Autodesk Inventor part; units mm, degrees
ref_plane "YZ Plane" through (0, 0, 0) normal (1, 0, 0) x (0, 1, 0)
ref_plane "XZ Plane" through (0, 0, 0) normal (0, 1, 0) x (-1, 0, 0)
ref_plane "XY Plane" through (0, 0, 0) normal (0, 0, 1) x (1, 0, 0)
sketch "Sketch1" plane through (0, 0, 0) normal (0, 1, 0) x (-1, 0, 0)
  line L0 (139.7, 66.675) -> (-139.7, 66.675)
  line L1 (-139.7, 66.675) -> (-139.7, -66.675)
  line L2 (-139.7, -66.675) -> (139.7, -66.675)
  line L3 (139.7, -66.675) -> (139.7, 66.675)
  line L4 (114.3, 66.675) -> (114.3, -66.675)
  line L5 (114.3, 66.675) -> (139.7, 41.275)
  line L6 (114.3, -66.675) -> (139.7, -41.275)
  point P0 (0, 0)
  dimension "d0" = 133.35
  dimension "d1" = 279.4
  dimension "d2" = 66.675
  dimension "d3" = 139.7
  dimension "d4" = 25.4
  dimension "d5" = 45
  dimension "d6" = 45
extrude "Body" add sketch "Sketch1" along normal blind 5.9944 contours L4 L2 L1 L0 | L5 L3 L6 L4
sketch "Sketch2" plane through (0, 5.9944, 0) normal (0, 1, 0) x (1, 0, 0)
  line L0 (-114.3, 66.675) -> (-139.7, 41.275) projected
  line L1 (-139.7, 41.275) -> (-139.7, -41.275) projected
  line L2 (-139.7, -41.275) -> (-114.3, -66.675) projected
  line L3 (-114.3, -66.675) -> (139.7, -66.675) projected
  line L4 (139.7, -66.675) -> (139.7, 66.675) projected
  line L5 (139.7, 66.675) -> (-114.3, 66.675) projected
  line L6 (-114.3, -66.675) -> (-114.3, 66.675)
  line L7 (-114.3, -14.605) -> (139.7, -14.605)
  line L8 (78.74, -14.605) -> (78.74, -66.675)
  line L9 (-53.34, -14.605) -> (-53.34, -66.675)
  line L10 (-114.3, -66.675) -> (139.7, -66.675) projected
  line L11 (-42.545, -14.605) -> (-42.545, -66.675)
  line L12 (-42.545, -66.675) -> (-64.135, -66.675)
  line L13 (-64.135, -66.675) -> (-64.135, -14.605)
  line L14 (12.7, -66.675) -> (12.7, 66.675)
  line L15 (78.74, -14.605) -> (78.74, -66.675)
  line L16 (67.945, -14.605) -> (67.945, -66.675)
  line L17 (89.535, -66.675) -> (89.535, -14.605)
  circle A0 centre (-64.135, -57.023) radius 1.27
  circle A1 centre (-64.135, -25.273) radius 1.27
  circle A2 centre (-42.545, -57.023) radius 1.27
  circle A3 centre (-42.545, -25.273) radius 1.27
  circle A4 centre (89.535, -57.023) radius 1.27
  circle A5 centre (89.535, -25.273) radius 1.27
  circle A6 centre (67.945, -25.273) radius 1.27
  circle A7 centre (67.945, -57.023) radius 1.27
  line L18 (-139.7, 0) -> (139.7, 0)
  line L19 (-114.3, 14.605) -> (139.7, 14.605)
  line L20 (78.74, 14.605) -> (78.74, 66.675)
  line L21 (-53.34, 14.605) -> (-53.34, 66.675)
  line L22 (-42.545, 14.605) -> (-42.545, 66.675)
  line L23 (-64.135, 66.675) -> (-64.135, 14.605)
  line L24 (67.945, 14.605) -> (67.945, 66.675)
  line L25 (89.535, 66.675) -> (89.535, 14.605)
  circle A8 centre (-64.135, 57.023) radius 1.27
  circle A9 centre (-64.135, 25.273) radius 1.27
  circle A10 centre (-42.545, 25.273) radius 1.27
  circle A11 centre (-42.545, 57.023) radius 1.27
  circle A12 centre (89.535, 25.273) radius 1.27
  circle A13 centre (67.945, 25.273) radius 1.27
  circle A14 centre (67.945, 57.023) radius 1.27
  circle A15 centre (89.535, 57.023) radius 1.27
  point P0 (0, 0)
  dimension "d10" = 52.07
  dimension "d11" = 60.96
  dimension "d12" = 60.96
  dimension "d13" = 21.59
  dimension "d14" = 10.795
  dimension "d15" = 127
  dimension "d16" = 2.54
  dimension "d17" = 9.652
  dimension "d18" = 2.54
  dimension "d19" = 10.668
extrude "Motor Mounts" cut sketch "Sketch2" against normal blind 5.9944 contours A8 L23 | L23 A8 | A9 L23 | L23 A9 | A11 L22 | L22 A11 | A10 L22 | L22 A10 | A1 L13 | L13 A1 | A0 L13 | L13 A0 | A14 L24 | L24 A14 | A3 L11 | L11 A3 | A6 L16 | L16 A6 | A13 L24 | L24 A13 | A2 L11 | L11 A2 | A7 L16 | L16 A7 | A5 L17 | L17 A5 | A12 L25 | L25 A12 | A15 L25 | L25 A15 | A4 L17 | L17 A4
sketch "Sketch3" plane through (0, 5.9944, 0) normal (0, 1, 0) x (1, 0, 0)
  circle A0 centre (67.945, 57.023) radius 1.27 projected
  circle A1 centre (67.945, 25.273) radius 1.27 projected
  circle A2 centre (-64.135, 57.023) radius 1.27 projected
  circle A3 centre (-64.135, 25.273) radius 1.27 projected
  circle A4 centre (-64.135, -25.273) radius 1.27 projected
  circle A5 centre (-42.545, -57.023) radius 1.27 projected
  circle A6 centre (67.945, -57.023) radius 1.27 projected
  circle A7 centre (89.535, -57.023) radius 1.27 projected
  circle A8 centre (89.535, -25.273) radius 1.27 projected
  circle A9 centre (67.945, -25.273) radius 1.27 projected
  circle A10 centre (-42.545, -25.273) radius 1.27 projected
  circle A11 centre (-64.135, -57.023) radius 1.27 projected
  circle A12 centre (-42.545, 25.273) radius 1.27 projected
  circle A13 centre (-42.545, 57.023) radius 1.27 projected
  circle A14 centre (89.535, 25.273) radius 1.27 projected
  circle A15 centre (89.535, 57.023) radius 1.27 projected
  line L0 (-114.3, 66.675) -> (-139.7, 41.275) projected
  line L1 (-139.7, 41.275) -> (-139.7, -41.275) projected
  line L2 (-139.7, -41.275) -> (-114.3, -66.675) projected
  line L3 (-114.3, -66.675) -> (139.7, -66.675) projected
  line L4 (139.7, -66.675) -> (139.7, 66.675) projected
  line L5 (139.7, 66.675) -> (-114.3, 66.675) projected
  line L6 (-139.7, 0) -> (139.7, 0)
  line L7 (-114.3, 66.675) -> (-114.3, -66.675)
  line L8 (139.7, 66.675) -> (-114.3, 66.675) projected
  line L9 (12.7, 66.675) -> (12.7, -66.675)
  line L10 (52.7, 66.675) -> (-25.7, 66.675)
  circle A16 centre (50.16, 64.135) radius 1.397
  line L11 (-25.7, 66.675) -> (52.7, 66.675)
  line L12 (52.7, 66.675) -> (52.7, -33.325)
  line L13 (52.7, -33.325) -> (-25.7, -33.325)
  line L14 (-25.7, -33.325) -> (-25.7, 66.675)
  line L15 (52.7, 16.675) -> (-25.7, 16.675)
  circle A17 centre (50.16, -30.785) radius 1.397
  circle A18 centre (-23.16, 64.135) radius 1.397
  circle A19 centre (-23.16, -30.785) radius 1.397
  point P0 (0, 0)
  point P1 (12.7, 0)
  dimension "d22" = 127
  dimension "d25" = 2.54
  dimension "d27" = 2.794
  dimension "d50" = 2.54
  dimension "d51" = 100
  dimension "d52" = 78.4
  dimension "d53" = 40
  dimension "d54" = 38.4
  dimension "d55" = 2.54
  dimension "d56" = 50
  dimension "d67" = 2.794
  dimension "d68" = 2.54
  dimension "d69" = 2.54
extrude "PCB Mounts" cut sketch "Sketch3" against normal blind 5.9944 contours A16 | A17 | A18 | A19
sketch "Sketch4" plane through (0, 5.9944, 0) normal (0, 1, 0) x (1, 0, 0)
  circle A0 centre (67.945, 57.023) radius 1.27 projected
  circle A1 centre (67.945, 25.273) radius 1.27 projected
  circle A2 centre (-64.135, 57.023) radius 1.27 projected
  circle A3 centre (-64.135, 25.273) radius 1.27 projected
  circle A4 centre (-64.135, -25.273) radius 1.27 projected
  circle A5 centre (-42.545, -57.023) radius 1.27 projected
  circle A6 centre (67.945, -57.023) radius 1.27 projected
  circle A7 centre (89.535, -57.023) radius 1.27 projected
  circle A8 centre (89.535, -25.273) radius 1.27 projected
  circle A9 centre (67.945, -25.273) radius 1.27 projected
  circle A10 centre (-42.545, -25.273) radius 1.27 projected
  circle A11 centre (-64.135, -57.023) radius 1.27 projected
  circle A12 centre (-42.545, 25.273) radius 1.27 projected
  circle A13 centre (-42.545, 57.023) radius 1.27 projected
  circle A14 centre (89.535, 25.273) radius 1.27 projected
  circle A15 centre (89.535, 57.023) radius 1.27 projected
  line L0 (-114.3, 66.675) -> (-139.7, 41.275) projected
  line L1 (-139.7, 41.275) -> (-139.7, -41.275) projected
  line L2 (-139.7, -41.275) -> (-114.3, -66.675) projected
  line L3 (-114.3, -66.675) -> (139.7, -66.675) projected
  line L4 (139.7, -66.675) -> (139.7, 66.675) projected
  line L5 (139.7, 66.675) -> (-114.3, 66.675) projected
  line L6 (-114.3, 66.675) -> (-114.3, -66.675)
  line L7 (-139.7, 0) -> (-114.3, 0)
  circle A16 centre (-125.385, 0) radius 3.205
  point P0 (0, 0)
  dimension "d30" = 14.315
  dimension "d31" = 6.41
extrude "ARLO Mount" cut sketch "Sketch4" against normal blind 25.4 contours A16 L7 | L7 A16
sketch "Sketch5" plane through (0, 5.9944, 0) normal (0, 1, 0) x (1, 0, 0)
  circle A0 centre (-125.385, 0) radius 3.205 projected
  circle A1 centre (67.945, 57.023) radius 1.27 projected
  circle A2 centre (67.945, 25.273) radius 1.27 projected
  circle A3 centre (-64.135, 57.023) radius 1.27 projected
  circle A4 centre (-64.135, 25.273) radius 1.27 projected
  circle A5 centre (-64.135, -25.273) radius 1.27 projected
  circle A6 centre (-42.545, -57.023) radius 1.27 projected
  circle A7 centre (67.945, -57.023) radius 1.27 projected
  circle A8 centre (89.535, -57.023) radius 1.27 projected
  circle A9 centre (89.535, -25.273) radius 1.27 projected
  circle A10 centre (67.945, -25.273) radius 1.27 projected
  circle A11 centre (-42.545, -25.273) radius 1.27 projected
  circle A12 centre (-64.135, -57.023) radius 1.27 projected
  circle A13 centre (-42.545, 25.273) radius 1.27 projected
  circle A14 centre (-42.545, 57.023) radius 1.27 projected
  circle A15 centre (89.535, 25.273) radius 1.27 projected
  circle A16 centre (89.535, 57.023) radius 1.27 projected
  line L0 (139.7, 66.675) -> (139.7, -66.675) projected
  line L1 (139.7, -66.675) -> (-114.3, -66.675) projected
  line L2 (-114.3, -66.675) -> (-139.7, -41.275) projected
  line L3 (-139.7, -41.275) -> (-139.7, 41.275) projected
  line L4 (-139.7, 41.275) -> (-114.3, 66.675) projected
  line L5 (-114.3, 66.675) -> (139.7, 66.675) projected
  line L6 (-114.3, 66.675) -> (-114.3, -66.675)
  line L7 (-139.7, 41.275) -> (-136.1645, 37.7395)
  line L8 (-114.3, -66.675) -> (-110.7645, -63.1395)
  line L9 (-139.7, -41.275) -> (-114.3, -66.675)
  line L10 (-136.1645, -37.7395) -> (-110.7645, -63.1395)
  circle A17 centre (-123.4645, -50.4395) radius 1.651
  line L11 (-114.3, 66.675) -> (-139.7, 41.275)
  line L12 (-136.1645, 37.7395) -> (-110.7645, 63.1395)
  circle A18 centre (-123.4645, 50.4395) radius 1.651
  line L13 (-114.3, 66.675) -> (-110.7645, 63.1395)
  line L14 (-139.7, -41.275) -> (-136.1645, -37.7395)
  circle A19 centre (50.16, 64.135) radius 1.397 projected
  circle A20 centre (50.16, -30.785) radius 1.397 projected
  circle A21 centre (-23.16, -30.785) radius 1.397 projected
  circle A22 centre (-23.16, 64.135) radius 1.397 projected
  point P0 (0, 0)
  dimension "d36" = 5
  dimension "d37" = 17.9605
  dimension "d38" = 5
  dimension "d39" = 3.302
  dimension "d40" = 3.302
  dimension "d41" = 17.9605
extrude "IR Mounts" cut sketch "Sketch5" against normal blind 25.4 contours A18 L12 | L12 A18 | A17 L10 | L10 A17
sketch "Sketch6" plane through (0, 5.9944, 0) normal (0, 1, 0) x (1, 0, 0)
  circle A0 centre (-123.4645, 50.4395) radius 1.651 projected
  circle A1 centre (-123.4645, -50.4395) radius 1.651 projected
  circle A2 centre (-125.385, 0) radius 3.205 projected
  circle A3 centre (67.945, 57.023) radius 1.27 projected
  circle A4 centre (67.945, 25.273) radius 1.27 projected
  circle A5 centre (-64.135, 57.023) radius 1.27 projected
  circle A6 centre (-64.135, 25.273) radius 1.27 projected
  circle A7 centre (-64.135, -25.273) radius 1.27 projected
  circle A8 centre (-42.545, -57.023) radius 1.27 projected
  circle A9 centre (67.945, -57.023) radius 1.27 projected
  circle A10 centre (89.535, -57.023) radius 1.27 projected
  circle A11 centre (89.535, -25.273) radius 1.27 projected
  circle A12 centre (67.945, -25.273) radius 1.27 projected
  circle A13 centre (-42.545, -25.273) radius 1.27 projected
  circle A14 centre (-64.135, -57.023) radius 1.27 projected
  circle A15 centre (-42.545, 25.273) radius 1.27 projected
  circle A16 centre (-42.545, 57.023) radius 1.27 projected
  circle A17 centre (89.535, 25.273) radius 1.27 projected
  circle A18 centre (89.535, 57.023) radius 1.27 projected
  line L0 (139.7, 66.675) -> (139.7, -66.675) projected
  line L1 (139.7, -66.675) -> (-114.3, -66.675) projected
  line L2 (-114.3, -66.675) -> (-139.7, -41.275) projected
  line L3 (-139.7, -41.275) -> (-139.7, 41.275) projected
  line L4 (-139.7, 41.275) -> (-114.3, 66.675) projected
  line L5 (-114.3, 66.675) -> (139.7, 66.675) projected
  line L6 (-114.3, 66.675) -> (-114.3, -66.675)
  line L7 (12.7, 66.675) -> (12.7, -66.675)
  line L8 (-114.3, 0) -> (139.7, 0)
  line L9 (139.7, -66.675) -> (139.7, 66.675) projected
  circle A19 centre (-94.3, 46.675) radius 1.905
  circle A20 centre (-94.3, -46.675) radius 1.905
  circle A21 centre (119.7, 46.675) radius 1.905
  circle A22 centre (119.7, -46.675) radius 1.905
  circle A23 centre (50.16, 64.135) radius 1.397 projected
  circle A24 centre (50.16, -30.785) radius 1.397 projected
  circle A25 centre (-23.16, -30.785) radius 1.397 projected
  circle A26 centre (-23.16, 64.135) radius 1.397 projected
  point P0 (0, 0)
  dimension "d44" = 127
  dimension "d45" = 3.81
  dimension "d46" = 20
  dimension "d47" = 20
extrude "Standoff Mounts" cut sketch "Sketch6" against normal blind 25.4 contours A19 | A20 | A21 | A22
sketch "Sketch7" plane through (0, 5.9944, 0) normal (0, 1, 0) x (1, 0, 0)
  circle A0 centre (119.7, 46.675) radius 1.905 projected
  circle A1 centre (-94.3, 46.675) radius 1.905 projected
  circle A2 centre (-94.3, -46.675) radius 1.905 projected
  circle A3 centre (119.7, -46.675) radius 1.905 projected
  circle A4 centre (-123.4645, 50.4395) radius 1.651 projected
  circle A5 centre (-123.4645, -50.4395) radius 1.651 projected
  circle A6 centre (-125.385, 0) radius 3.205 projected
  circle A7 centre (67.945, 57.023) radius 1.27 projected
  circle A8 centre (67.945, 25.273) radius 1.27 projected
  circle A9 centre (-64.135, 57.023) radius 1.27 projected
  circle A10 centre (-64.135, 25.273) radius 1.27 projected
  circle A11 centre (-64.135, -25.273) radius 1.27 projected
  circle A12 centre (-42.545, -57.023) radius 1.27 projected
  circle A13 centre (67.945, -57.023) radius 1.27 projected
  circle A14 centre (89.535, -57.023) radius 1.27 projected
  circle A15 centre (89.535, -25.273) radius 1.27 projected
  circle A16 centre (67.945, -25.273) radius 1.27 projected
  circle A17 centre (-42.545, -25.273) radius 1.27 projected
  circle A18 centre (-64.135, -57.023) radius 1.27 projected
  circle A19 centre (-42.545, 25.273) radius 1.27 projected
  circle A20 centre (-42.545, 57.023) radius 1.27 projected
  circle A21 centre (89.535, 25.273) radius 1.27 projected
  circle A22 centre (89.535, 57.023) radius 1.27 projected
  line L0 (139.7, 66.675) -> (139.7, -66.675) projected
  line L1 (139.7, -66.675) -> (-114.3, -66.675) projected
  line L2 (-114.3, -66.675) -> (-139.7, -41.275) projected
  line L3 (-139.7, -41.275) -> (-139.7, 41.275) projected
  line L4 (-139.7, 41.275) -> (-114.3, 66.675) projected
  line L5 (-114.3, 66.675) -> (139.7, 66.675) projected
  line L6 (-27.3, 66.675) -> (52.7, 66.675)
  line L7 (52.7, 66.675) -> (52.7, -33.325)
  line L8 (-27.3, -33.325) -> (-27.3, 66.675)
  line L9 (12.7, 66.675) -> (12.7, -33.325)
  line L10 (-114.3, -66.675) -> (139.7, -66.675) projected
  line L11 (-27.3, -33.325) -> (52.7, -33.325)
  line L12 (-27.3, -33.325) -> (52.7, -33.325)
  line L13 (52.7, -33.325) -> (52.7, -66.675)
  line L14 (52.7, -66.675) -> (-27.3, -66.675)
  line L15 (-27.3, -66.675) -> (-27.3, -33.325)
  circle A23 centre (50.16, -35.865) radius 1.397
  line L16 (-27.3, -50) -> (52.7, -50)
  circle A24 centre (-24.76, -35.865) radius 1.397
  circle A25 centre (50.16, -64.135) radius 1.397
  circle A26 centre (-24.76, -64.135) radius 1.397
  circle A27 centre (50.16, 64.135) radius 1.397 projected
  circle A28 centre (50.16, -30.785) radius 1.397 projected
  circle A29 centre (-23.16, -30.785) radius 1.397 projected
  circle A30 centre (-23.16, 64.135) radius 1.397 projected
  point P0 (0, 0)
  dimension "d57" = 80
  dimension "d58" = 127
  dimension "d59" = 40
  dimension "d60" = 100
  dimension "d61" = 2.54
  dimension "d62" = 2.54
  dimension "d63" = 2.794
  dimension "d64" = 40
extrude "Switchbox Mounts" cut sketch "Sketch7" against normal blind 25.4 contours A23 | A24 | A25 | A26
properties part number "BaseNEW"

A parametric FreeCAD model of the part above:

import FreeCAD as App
import Part
import Sketcher

V = App.Vector
Q = App.Units.Quantity

doc = App.newDocument("Part")
params = doc.addObject("Spreadsheet::Sheet", "Params")
for row, (alias, value) in enumerate([
    ("sketch1_height", "5.25 in"),
    ("pad1_length", "0.236 in"),
    ("sketch2_diameter", "0.1 in"),
    ("pocket1_length", "0.236 in"),
    ("sketch3_diameter", "0.11 in"),
    ("pocket2_length", "0.236 in"),
    ("pocket3_length", "1 in"),
    ("sketch5_diameter", "0.13 in"),
    ("pocket4_length", "1 in"),
    ("sketch6_diameter", "0.15 in"),
    ("pocket5_length", "1 in"),
    ("sketch7_diameter", "0.11 in"),
    ("pocket6_length", "1 in"),
], start=1):
    params.set(f"A{row}", alias)
    params.set(f"B{row}", "=" + value)
    params.setAlias(f"B{row}", alias)

body = doc.addObject("PartDesign::Body", "Body")

# Sketch on XZ plane
sketch1 = body.newObject("Sketcher::SketchObject", "Sketch")
sketch1.AttachmentSupport = (doc.getObject("XZ_Plane"), [""])
sketch1.MapMode = "FlatFace"
sketch1.addGeometry(Part.LineSegment(V(140, -67, 0), V(-114, -67, 0)), False)
sketch1.addGeometry(Part.LineSegment(V(-114, -67, 0), V(-140, -41, 0)), False)
sketch1.addGeometry(Part.LineSegment(V(-140, -41, 0), V(-140, 41, 0)), False)
sketch1.addGeometry(Part.LineSegment(V(-140, 41, 0), V(-114, 67, 0)), False)
sketch1.addGeometry(Part.LineSegment(V(-114, 67, 0), V(140, 67, 0)), False)
sketch1.addGeometry(Part.LineSegment(V(140, 67, 0), V(140, -67, 0)), False)
sketch1.addConstraint(Sketcher.Constraint("Coincident", 0, 2, 1, 1))
sketch1.addConstraint(Sketcher.Constraint("Coincident", 1, 2, 2, 1))
sketch1.addConstraint(Sketcher.Constraint("Coincident", 2, 2, 3, 1))
sketch1.addConstraint(Sketcher.Constraint("Coincident", 3, 2, 4, 1))
sketch1.addConstraint(Sketcher.Constraint("Coincident", 4, 2, 5, 1))
sketch1.addConstraint(Sketcher.Constraint("Coincident", 5, 2, 0, 1))
sketch1.addConstraint(Sketcher.Constraint("Horizontal", 0))
sketch1.addConstraint(Sketcher.Constraint("Vertical", 2))
sketch1.addConstraint(Sketcher.Constraint("Horizontal", 4))
sketch1.addConstraint(Sketcher.Constraint("Vertical", 5))
sketch1.addConstraint(Sketcher.Constraint("Symmetric", 0, 2, 3, 2, -1))
sketch1.addConstraint(Sketcher.Constraint("Perpendicular", 1, 3))
sketch1.addConstraint(Sketcher.Constraint("Equal", 1, 3))
sketch1.addConstraint(Sketcher.Constraint("DistanceX", 1, 2, 0, 2, Q("1 in")))
sketch1.addConstraint(Sketcher.Constraint("DistanceX", 2, 2, 4, 2, Q("11 in")))
sketch1.addConstraint(Sketcher.Constraint("DistanceY", 5, 2, 5, 1, Q("5.25 in")))
sketch1.addConstraint(Sketcher.Constraint("DistanceX", 1, 2, -1, 1, Q("5.5 in")))
sketch1.setExpression("Constraints[15]", "Params.sketch1_height")
pad1 = body.newObject("PartDesign::Pad", "Pad")
pad1.Profile = sketch1
pad1.setExpression("Length", "Params.pad1_length")
pad1.Reversed = True

# Sketch on XZ plane
sketch2 = body.newObject("Sketcher::SketchObject", "Sketch001")
sketch2.AttachmentSupport = (doc.getObject("XZ_Plane"), [""])
sketch2.MapMode = "FlatFace"
sketch2.AttachmentOffset = App.Placement(V(0, 0, -0.236 * 25.4), App.Rotation())
sketch2.addGeometry(Part.Circle(V(-64.1, -57, 0), V(0, 0, 1), 1.3), False)
sketch2.addGeometry(Part.Circle(V(-64.1, -25.3, 0), V(0, 0, 1), 1.3), False)
sketch2.addGeometry(Part.Circle(V(-42.5, -57, 0), V(0, 0, 1), 1.3), False)
sketch2.addGeometry(Part.Circle(V(-42.5, -25.3, 0), V(0, 0, 1), 1.3), False)
sketch2.addGeometry(Part.Circle(V(-64.1, 25.3, 0), V(0, 0, 1), 1.3), False)
sketch2.addGeometry(Part.Circle(V(-64.1, 57, 0), V(0, 0, 1), 1.3), False)
sketch2.addGeometry(Part.Circle(V(67.9, -57, 0), V(0, 0, 1), 1.3), False)
sketch2.addGeometry(Part.Circle(V(-42.5, 25.3, 0), V(0, 0, 1), 1.3), False)
sketch2.addGeometry(Part.Circle(V(67.9, 25.3, 0), V(0, 0, 1), 1.3), False)
sketch2.addGeometry(Part.Circle(V(67.9, -25.3, 0), V(0, 0, 1), 1.3), False)
sketch2.addGeometry(Part.Circle(V(-42.5, 57, 0), V(0, 0, 1), 1.3), False)
sketch2.addGeometry(Part.Circle(V(67.9, 57, 0), V(0, 0, 1), 1.3), False)
sketch2.addGeometry(Part.Circle(V(89.5, 25.3, 0), V(0, 0, 1), 1.3), False)
sketch2.addGeometry(Part.Circle(V(89.5, -25.3, 0), V(0, 0, 1), 1.3), False)
sketch2.addGeometry(Part.Circle(V(89.5, -57, 0), V(0, 0, 1), 1.3), False)
sketch2.addGeometry(Part.Circle(V(89.5, 57, 0), V(0, 0, 1), 1.3), False)
sketch2.addConstraint(Sketcher.Constraint("Equal", 0, 1))
sketch2.addConstraint(Sketcher.Constraint("Equal", 1, 2))
sketch2.addConstraint(Sketcher.Constraint("Equal", 2, 3))
sketch2.addConstraint(Sketcher.Constraint("Equal", 3, 4))
sketch2.addConstraint(Sketcher.Constraint("Equal", 4, 5))
sketch2.addConstraint(Sketcher.Constraint("Equal", 5, 6))
sketch2.addConstraint(Sketcher.Constraint("Equal", 6, 7))
sketch2.addConstraint(Sketcher.Constraint("Equal", 7, 8))
sketch2.addConstraint(Sketcher.Constraint("Equal", 8, 9))
sketch2.addConstraint(Sketcher.Constraint("Equal", 9, 10))
sketch2.addConstraint(Sketcher.Constraint("Equal", 10, 11))
sketch2.addConstraint(Sketcher.Constraint("Equal", 11, 12))
sketch2.addConstraint(Sketcher.Constraint("Equal", 12, 13))
sketch2.addConstraint(Sketcher.Constraint("Equal", 13, 14))
sketch2.addConstraint(Sketcher.Constraint("Equal", 14, 15))
sketch2.addConstraint(Sketcher.Constraint("Symmetric", 1, 3, 4, 3, -1))
sketch2.addConstraint(Sketcher.Constraint("Symmetric", 0, 3, 5, 3, -1))
sketch2.addConstraint(Sketcher.Constraint("Symmetric", 3, 3, 7, 3, -1))
sketch2.addConstraint(Sketcher.Constraint("Symmetric", 8, 3, 9, 3, -1))
sketch2.addConstraint(Sketcher.Constraint("Symmetric", 2, 3, 10, 3, -1))
sketch2.addConstraint(Sketcher.Constraint("Symmetric", 6, 3, 11, 3, -1))
sketch2.addConstraint(Sketcher.Constraint("Symmetric", 12, 3, 13, 3, -1))
sketch2.addConstraint(Sketcher.Constraint("Symmetric", 14, 3, 15, 3, -1))
sketch2.addConstraint(Sketcher.Constraint("Horizontal", 0, 3, 2, 3))
sketch2.addConstraint(Sketcher.Constraint("Horizontal", 1, 3, 3, 3))
sketch2.addConstraint(Sketcher.Constraint("Horizontal", 2, 3, 6, 3))
sketch2.addConstraint(Sketcher.Constraint("Horizontal", 7, 3, 8, 3))
sketch2.addConstraint(Sketcher.Constraint("Horizontal", 8, 3, 12, 3))
sketch2.addConstraint(Sketcher.Constraint("Horizontal", 6, 3, 14, 3))
sketch2.addConstraint(Sketcher.Constraint("Vertical", 0, 3, 1, 3))
sketch2.addConstraint(Sketcher.Constraint("Vertical", 2, 3, 3, 3))
sketch2.addConstraint(Sketcher.Constraint("Vertical", 6, 3, 8, 3))
sketch2.addConstraint(Sketcher.Constraint("Vertical", 13, 3, 14, 3))
sketch2.addConstraint(Sketcher.Constraint("Diameter", 0, Q("0.1 in")))
sketch2.addConstraint(Sketcher.Constraint("DistanceX", 0, 3, 2, 3, Q("0.85 in")))
sketch2.addConstraint(Sketcher.Constraint("DistanceX", 8, 3, 12, 3, Q("0.85 in")))
sketch2.addConstraint(Sketcher.Constraint("DistanceX", 0, 3, 6, 3, Q("5.2 in")))
sketch2.addConstraint(Sketcher.Constraint("DistanceY", 0, 3, 1, 3, Q("1.25 in")))
sketch2.addConstraint(Sketcher.Constraint("DistanceY", 1, 3, 4, 3, Q("1.99 in")))
sketch2.addConstraint(Sketcher.Constraint("DistanceX", 0, 3, -1, 1, Q("2.525 in")))
sketch2.setExpression("Constraints[33]", "Params.sketch2_diameter")
pocket1 = body.newObject("PartDesign::Pocket", "Pocket")
pocket1.Profile = sketch2
pocket1.setExpression("Length", "Params.pocket1_length")
pocket1.Reversed = True

# Sketch on XZ plane
sketch3 = body.newObject("Sketcher::SketchObject", "Sketch002")
sketch3.AttachmentSupport = (doc.getObject("XZ_Plane"), [""])
sketch3.MapMode = "FlatFace"
sketch3.AttachmentOffset = App.Placement(V(0, 0, -0.236 * 25.4), App.Rotation())
sketch3.addGeometry(Part.Circle(V(50.2, -64.1, 0), V(0, 0, 1), 1.4), False)
sketch3.addGeometry(Part.Circle(V(50.2, 30.8, 0), V(0, 0, 1), 1.4), False)
sketch3.addGeometry(Part.Circle(V(-23.2, -64.1, 0), V(0, 0, 1), 1.4), False)
sketch3.addGeometry(Part.Circle(V(-23.2, 30.8, 0), V(0, 0, 1), 1.4), False)
sketch3.addConstraint(Sketcher.Constraint("Equal", 0, 1))
sketch3.addConstraint(Sketcher.Constraint("Equal", 1, 2))
sketch3.addConstraint(Sketcher.Constraint("Equal", 2, 3))
sketch3.addConstraint(Sketcher.Constraint("Horizontal", 0, 3, 2, 3))
sketch3.addConstraint(Sketcher.Constraint("Horizontal", 1, 3, 3, 3))
sketch3.addConstraint(Sketcher.Constraint("Vertical", 0, 3, 1, 3))
sketch3.addConstraint(Sketcher.Constraint("Vertical", 2, 3, 3, 3))
sketch3.addConstraint(Sketcher.Constraint("Diameter", 0, Q("0.11 in")))
sketch3.addConstraint(Sketcher.Constraint("DistanceY", 0, 3, -1, 1, Q("2.525 in")))
sketch3.addConstraint(Sketcher.Constraint("DistanceY", -1, 1, 1, 3, Q("1.212 in")))
sketch3.addConstraint(Sketcher.Constraint("DistanceX", -1, 1, 0, 3, Q("1.9748 in")))
sketch3.addConstraint(Sketcher.Constraint("DistanceX", 2, 3, -1, 1, Q("0.9118 in")))
sketch3.setExpression("Constraints[7]", "Params.sketch3_diameter")
pocket2 = body.newObject("PartDesign::Pocket", "Pocket001")
pocket2.Profile = sketch3
pocket2.setExpression("Length", "Params.pocket2_length")
pocket2.Reversed = True

# Sketch on XZ plane
sketch4 = body.newObject("Sketcher::SketchObject", "Sketch003")
sketch4.AttachmentSupport = (doc.getObject("XZ_Plane"), [""])
sketch4.MapMode = "FlatFace"
sketch4.AttachmentOffset = App.Placement(V(0, 0, -0.236 * 25.4), App.Rotation())
sketch4.addGeometry(Part.Circle(V(-125.4, 0, 0), V(0, 0, 1), 3.2), False)
sketch4.addConstraint(Sketcher.Constraint("PointOnObject", 0, 3, -1))
sketch4.addConstraint(Sketcher.Constraint("Diameter", 0, Q("6.41 mm")))
sketch4.addConstraint(Sketcher.Constraint("DistanceX", 0, 3, -1, 1, Q("125.385 mm")))
pocket3 = body.newObject("PartDesign::Pocket", "Pocket002")
pocket3.Profile = sketch4
pocket3.setExpression("Length", "Params.pocket3_length")
pocket3.Reversed = True

# Sketch on XZ plane
sketch5 = body.newObject("Sketcher::SketchObject", "Sketch004")
sketch5.AttachmentSupport = (doc.getObject("XZ_Plane"), [""])
sketch5.MapMode = "FlatFace"
sketch5.AttachmentOffset = App.Placement(V(0, 0, -0.236 * 25.4), App.Rotation())
sketch5.addGeometry(Part.Circle(V(-123.5, -50.4, 0), V(0, 0, 1), 1.7), False)
sketch5.addGeometry(Part.Circle(V(-123.5, 50.4, 0), V(0, 0, 1), 1.7), False)
sketch5.addConstraint(Sketcher.Constraint("Equal", 0, 1))
sketch5.addConstraint(Sketcher.Constraint("Symmetric", 0, 3, 1, 3, -1))
sketch5.addConstraint(Sketcher.Constraint("Diameter", 0, Q("0.13 in")))
sketch5.addConstraint(Sketcher.Constraint("DistanceX", 0, 3, -1, 1, Q("4.8608 in")))
sketch5.addConstraint(Sketcher.Constraint("DistanceY", 0, 3, -1, 1, Q("1.9858 in")))
sketch5.setExpression("Constraints[2]", "Params.sketch5_diameter")
pocket4 = body.newObject("PartDesign::Pocket", "Pocket003")
pocket4.Profile = sketch5
pocket4.setExpression("Length", "Params.pocket4_length")
pocket4.Reversed = True

# Sketch on XZ plane
sketch6 = body.newObject("Sketcher::SketchObject", "Sketch005")
sketch6.AttachmentSupport = (doc.getObject("XZ_Plane"), [""])
sketch6.MapMode = "FlatFace"
sketch6.AttachmentOffset = App.Placement(V(0, 0, -0.236 * 25.4), App.Rotation())
sketch6.addGeometry(Part.Circle(V(-94.3, -46.7, 0), V(0, 0, 1), 1.9), False)
sketch6.addGeometry(Part.Circle(V(-94.3, 46.7, 0), V(0, 0, 1), 1.9), False)
sketch6.addGeometry(Part.Circle(V(119.7, -46.7, 0), V(0, 0, 1), 1.9), False)
sketch6.addGeometry(Part.Circle(V(119.7, 46.7, 0), V(0, 0, 1), 1.9), False)
sketch6.addConstraint(Sketcher.Constraint("Equal", 0, 1))
sketch6.addConstraint(Sketcher.Constraint("Equal", 1, 2))
sketch6.addConstraint(Sketcher.Constraint("Equal", 2, 3))
sketch6.addConstraint(Sketcher.Constraint("Symmetric", 0, 3, 1, 3, -1))
sketch6.addConstraint(Sketcher.Constraint("Symmetric", 2, 3, 3, 3, -1))
sketch6.addConstraint(Sketcher.Constraint("Horizontal", 0, 3, 2, 3))
sketch6.addConstraint(Sketcher.Constraint("Diameter", 0, Q("0.15 in")))
sketch6.addConstraint(Sketcher.Constraint("DistanceX", 0, 3, -1, 1, Q("3.7126 in")))
sketch6.addConstraint(Sketcher.Constraint("DistanceY", 0, 3, -1, 1, Q("1.8376 in")))
sketch6.addConstraint(Sketcher.Constraint("DistanceX", -1, 1, 2, 3, Q("4.7126 in")))
sketch6.setExpression("Constraints[6]", "Params.sketch6_diameter")
pocket5 = body.newObject("PartDesign::Pocket", "Pocket004")
pocket5.Profile = sketch6
pocket5.setExpression("Length", "Params.pocket5_length")
pocket5.Reversed = True

# Sketch on XZ plane
sketch7 = body.newObject("Sketcher::SketchObject", "Sketch006")
sketch7.AttachmentSupport = (doc.getObject("XZ_Plane"), [""])
sketch7.MapMode = "FlatFace"
sketch7.AttachmentOffset = App.Placement(V(0, 0, -0.236 * 25.4), App.Rotation())
sketch7.addGeometry(Part.Circle(V(50.2, 35.9, 0), V(0, 0, 1), 1.4), False)
sketch7.addGeometry(Part.Circle(V(-24.8, 35.9, 0), V(0, 0, 1), 1.4), False)
sketch7.addGeometry(Part.Circle(V(50.2, 64.1, 0), V(0, 0, 1), 1.4), False)
sketch7.addGeometry(Part.Circle(V(-24.8, 64.1, 0), V(0, 0, 1), 1.4), False)
sketch7.addConstraint(Sketcher.Constraint("Equal", 0, 1))
sketch7.addConstraint(Sketcher.Constraint("Equal", 1, 2))
sketch7.addConstraint(Sketcher.Constraint("Equal", 2, 3))
sketch7.addConstraint(Sketcher.Constraint("Horizontal", 0, 3, 1, 3))
sketch7.addConstraint(Sketcher.Constraint("Horizontal", 2, 3, 3, 3))
sketch7.addConstraint(Sketcher.Constraint("Vertical", 0, 3, 2, 3))
sketch7.addConstraint(Sketcher.Constraint("Vertical", 1, 3, 3, 3))
sketch7.addConstraint(Sketcher.Constraint("Diameter", 0, Q("0.11 in")))
sketch7.addConstraint(Sketcher.Constraint("DistanceY", -1, 1, 0, 3, Q("1.412 in")))
sketch7.addConstraint(Sketcher.Constraint("DistanceY", -1, 1, 2, 3, Q("2.525 in")))
sketch7.addConstraint(Sketcher.Constraint("DistanceX", -1, 1, 0, 3, Q("1.9748 in")))
sketch7.addConstraint(Sketcher.Constraint("DistanceX", 1, 3, -1, 1, Q("0.9748 in")))
sketch7.setExpression("Constraints[7]", "Params.sketch7_diameter")
pocket6 = body.newObject("PartDesign::Pocket", "Pocket005")
pocket6.Profile = sketch7
pocket6.setExpression("Length", "Params.pocket6_length")
pocket6.Reversed = True

doc.recompute()
